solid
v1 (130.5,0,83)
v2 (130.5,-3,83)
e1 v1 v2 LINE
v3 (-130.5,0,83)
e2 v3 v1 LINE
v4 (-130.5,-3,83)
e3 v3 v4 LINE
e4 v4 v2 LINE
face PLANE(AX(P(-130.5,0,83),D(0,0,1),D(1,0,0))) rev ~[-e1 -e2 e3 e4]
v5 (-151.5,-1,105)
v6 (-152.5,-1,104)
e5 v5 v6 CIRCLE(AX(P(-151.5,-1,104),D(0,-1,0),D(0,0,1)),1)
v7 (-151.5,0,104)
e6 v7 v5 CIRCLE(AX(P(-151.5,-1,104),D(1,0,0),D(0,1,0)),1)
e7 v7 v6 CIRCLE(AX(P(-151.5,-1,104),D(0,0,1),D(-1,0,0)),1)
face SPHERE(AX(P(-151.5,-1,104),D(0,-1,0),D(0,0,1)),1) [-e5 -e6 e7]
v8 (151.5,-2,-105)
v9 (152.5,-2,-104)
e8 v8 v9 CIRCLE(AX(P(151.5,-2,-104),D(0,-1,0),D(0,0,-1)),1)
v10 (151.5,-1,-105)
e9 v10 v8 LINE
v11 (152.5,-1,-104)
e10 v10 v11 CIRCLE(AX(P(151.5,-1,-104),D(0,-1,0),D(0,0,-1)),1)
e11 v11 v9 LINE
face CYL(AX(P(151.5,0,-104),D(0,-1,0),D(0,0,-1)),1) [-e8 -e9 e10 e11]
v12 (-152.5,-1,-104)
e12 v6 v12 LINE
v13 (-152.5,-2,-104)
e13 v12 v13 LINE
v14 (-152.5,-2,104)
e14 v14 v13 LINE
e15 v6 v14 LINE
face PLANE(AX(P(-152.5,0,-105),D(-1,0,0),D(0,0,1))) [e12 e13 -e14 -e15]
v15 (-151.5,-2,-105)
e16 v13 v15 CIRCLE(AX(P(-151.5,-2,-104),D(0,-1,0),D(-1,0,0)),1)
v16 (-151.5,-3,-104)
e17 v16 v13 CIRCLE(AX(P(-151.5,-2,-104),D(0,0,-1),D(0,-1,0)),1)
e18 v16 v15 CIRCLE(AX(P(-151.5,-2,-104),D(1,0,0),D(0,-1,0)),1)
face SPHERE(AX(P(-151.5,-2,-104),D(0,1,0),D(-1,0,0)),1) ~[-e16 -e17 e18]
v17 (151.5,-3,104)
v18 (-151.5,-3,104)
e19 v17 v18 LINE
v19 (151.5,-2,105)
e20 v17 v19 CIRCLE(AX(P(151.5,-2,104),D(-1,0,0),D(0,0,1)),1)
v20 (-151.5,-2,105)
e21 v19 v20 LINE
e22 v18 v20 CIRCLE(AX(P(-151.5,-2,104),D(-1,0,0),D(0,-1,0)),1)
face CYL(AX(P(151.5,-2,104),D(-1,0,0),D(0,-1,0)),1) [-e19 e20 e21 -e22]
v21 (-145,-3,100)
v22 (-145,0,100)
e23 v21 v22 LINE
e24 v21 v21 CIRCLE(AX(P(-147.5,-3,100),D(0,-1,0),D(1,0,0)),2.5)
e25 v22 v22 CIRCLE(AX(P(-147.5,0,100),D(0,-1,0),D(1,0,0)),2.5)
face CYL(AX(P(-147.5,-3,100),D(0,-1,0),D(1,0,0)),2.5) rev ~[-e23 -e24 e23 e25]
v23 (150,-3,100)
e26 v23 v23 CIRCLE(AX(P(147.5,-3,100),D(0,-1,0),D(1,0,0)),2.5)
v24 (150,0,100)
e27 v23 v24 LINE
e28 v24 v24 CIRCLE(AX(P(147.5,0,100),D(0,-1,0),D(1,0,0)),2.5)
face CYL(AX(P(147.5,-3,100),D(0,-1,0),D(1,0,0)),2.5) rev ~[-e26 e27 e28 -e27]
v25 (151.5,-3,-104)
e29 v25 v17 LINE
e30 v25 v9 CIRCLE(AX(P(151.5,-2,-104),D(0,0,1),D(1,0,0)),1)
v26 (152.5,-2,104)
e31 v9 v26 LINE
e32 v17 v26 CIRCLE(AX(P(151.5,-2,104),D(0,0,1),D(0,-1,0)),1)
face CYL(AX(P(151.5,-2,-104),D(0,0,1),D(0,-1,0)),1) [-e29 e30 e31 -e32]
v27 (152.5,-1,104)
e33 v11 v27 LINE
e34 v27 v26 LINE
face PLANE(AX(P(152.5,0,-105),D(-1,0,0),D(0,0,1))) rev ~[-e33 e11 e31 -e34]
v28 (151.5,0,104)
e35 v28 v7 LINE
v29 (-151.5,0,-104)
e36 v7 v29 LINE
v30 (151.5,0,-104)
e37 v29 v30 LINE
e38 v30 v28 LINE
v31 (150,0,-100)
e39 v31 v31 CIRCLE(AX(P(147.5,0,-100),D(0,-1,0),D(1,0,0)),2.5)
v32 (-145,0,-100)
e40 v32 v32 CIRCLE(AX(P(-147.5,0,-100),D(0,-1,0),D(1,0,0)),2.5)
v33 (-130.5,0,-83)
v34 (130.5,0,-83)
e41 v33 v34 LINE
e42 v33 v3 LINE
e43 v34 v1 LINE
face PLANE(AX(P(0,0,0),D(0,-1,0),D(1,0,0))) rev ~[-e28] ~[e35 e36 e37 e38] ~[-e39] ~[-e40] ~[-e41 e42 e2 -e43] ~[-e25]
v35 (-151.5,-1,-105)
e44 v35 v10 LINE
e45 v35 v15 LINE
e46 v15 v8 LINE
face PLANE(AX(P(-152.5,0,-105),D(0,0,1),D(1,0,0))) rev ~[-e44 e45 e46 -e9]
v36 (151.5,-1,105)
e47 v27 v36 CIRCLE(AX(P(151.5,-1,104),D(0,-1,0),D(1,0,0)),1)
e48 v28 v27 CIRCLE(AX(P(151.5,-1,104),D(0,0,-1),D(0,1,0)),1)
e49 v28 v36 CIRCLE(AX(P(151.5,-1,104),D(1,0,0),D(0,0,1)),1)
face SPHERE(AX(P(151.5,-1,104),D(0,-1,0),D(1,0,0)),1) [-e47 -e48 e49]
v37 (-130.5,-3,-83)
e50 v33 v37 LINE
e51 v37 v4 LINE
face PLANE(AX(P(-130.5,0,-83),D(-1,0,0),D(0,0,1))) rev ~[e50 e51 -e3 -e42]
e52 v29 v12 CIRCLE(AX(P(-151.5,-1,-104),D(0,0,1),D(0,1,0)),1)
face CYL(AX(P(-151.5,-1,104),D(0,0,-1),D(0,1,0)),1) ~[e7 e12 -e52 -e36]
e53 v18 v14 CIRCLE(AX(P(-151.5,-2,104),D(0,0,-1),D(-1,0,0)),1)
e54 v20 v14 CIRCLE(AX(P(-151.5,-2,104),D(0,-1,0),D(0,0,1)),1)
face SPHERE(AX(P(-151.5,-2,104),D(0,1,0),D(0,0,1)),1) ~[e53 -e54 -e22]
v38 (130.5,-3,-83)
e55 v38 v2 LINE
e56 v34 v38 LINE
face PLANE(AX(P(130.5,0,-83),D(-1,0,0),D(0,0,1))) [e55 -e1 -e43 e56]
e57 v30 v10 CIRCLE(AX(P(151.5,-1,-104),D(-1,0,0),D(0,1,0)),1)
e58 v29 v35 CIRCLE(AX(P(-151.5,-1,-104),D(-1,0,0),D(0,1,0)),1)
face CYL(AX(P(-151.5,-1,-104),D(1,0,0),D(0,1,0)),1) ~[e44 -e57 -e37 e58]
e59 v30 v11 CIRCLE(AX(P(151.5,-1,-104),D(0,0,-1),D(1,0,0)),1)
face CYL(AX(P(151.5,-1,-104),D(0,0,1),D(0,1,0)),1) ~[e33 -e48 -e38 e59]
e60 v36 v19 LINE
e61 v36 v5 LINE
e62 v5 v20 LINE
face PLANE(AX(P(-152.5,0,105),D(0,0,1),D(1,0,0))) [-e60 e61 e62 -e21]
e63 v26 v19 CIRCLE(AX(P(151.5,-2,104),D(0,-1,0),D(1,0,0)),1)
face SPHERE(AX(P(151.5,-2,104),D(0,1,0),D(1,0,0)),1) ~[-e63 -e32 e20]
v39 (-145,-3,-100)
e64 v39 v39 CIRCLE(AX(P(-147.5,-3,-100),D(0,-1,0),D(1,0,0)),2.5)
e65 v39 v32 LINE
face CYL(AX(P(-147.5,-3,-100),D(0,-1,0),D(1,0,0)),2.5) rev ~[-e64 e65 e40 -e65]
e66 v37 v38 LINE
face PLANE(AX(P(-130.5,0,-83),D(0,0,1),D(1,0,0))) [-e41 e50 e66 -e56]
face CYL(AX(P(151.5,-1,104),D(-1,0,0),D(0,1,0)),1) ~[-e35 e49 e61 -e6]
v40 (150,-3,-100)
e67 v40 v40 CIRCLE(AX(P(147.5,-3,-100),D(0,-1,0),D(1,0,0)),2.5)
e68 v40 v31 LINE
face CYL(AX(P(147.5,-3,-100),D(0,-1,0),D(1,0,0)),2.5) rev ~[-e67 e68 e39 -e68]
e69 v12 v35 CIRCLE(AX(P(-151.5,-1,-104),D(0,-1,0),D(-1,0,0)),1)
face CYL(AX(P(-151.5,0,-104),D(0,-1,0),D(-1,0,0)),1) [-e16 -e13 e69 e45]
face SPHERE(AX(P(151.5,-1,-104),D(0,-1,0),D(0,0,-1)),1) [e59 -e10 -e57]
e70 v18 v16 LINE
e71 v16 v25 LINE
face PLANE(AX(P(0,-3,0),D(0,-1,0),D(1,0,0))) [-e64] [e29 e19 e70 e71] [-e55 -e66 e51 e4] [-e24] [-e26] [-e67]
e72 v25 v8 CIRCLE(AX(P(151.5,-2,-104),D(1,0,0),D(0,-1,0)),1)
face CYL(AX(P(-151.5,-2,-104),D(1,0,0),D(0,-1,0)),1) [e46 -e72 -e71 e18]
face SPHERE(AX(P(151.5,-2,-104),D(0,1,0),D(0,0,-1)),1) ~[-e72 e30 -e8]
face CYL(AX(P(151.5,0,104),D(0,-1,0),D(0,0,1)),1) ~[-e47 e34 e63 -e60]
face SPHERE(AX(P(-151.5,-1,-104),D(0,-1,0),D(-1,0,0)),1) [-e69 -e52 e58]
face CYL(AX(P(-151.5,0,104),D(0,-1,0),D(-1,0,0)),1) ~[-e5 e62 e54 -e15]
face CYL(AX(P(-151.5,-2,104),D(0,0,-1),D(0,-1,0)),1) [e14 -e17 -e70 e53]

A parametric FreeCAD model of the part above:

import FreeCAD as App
import Part
import Sketcher
from FreeCAD import Vector


def edges_at(feature, points):
    """Names of the edges that pass closest to the given points."""
    edges = feature.Shape.Edges
    near = lambda p: min(range(len(edges)), key=lambda i: edges[i].distToShape(Part.Vertex(*p))[0])
    return sorted({f"Edge{near(p) + 1}" for p in points})


def add_polygon(sketch, points):
    """Adds a closed chain of lines whose ends are joined by coincident constraints."""
    first, n = sketch.GeometryCount, len(points)
    for a, b in zip(points, points[1:] + points[:1]):
        sketch.addGeometry(Part.LineSegment(App.Vector(*a, 0), App.Vector(*b, 0)), False)
    for i in range(n):
        sketch.addConstraint(Sketcher.Constraint("Coincident", first + i, 2, first + (i + 1) % n, 1))

doc = App.newDocument("Part")
body = doc.addObject("PartDesign::Body", "Body")

# Sketch on XZ plane
sketch1 = body.newObject("Sketcher::SketchObject", "Sketch")
sketch1.AttachmentSupport = (doc.getObject("XZ_Plane"), [""])
sketch1.MapMode = "FlatFace"
add_polygon(sketch1, [(-152, 105), (-152, -105), (152, -105), (152, 105)])  # lines 0-3
add_polygon(sketch1, [(130, -83), (-130, -83), (-130, 83), (130, 83)])  # lines 4-7
sketch1.addConstraint([
    Sketcher.Constraint("Vertical", 0),
    Sketcher.Constraint("Horizontal", 1),
    Sketcher.Constraint("Vertical", 2),
    Sketcher.Constraint("Horizontal", 3),
    Sketcher.Constraint("Horizontal", 4),
    Sketcher.Constraint("Vertical", 5),
    Sketcher.Constraint("Horizontal", 6),
    Sketcher.Constraint("Vertical", 7),
    Sketcher.Constraint("Symmetric", 0, 2, 2, 2, -1, 1),
    Sketcher.Constraint("Symmetric", 4, 2, 6, 2, -1, 1),
    Sketcher.Constraint("DistanceX", 1, 1, 1, 2, 305.0),
    Sketcher.Constraint("DistanceX", 4, 2, 4, 1, 261.0),
    Sketcher.Constraint("DistanceY", 0, 2, 0, 1, 210.0),
    Sketcher.Constraint("DistanceY", 5, 1, 5, 2, 166.0),
])
pad1 = body.newObject("PartDesign::Pad", "Pad")
pad1.Profile = sketch1
pad1.Length = 3
doc.recompute()

fillet = body.newObject("PartDesign::Fillet", "Fillet")
fillet.Base = (pad1, edges_at(pad1, [
    (-152.5, -1.5, 105),
    (-152.5, -1.5, -105),
    (152.5, -1.5, -105),
    (152.5, -1.5, 105),
]))
fillet.Radius = 1
doc.recompute()

fillet2 = body.newObject("PartDesign::Fillet", "Fillet001")
fillet2.Base = (fillet, edges_at(fillet, [(0, -3, -105), (0, 0, -105)]))
fillet2.Radius = 1

# Sketch on XZ plane
sketch2 = body.newObject("Sketcher::SketchObject", "Sketch001")
sketch2.AttachmentSupport = (doc.getObject("XZ_Plane"), [""])
sketch2.MapMode = "FlatFace"
sketch2.AttachmentOffset = App.Placement(Vector(0, 0, 3), App.Rotation())
sketch2.addGeometry([
    Part.Circle(Vector(-147.5, 100, 0), Vector(0, 0, 1), 2.5),
    Part.Circle(Vector(147.5, 100, 0), Vector(0, 0, 1), 2.5),
    Part.Circle(Vector(147.5, -100, 0), Vector(0, 0, 1), 2.5),
    Part.Circle(Vector(-147.5, -100, 0), Vector(0, 0, 1), 2.5),
], False)
sketch2.addConstraint([
    Sketcher.Constraint("Equal", 0, 1),
    Sketcher.Constraint("Equal", 1, 2),
    Sketcher.Constraint("Equal", 2, 3),
    Sketcher.Constraint("Symmetric", 0, 3, 2, 3, -1, 1),
    Sketcher.Constraint("Symmetric", 1, 3, 3, 3, -1, 1),
    Sketcher.Constraint("Symmetric", 0, 3, 1, 3, -2),
    Sketcher.Constraint("Diameter", 0, 5.0),
    Sketcher.Constraint("DistanceY", -1, 1, 0, 3, 100.0),
    Sketcher.Constraint("DistanceX", 0, 3, 1, 3, 295.0),
])
pocket1 = body.newObject("PartDesign::Pocket", "Pocket")
pocket1.Profile = sketch2
pocket1.Type = "ThroughAll"

doc.recompute()
